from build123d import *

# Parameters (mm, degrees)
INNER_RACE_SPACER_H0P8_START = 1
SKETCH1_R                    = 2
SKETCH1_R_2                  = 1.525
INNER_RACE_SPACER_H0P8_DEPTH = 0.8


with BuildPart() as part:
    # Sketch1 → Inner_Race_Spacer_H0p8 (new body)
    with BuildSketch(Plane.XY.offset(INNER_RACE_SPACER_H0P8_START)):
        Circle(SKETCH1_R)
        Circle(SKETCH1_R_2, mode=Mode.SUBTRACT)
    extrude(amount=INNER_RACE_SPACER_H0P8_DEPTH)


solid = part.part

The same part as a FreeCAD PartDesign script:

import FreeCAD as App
import Part
import Sketcher
Q = App.Units.Quantity

doc = App.newDocument("Part")
body = doc.addObject("PartDesign::Body", "Body")

sketch1 = doc.addObject("Sketcher::SketchObject", "Sketch")
body.addObject(sketch1)
sketch1.AttachmentSupport = (doc.XY_Plane, [""])
sketch1.MapMode = "FlatFace"
sketch1.AttachmentOffset = App.Placement(App.Vector(0, 0, 1), App.Rotation())
sketch1.addGeometry([
    Part.Circle(App.Vector(0, 0, 0), App.Vector(0, 0, 1), 2),
    Part.Circle(App.Vector(0, 0, 0), App.Vector(0, 0, 1), 1.5),
], False)
sketch1.addConstraint([
    Sketcher.Constraint("Coincident", 0, 3, -1, 1),
    Sketcher.Constraint("Coincident", 1, 3, -1, 1),
    Sketcher.Constraint("Diameter", 0, Q("4 mm")),
    Sketcher.Constraint("Diameter", 1, Q("3.05 mm")),
])
pad1 = doc.addObject("PartDesign::Pad", "Pad")
body.addObject(pad1)
pad1.Profile = sketch1
pad1.Length = 0.8

doc.recompute()
